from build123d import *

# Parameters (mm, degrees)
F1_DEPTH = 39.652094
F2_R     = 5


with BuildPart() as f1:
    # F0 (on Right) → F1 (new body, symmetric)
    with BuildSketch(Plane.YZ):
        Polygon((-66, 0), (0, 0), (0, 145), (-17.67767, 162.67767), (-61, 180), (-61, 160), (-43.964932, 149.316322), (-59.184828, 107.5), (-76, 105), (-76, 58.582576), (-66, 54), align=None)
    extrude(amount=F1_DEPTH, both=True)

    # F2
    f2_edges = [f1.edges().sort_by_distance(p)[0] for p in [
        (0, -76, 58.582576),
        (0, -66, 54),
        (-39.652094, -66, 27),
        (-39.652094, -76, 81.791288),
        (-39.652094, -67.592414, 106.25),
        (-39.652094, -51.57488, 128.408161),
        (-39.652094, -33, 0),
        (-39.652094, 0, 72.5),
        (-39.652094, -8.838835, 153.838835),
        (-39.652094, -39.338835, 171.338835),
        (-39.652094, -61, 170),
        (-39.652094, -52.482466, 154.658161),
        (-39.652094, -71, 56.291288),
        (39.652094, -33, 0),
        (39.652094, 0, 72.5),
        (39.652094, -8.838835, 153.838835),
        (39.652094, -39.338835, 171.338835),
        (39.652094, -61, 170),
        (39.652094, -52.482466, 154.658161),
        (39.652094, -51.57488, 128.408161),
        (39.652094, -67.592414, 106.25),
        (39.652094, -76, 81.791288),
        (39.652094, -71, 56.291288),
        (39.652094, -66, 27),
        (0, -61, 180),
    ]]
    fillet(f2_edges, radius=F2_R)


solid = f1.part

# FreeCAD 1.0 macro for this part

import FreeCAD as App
import Part
import Sketcher
from FreeCAD import Vector
Q = App.Units.Quantity


def edges_at(feature, points):
    """Names of the edges that pass closest to the given points."""
    edges = feature.Shape.Edges
    near = lambda p: min(range(len(edges)), key=lambda i: edges[i].distToShape(Part.Vertex(*p))[0])
    return sorted({f"Edge{near(p) + 1}" for p in points})

doc = App.newDocument("Part")
body = doc.addObject("PartDesign::Body", "Body")

sketch1 = body.newObject("Sketcher::SketchObject", "Sketch")
sketch1.AttachmentSupport = (doc.getObject("YZ_Plane"), [""])
sketch1.MapMode = "FlatFace"
sketch1.addGeometry(Part.LineSegment(Vector(-66, 0, 0), Vector(0, 0, 0)), False)
sketch1.addGeometry(Part.LineSegment(Vector(0, 0, 0), Vector(0, 145, 0)), False)
sketch1.addGeometry(Part.LineSegment(Vector(0, 145, 0), Vector(-18, 163, 0)), False)
sketch1.addGeometry(Part.LineSegment(Vector(-18, 163, 0), Vector(-61, 180, 0)), False)
sketch1.addGeometry(Part.LineSegment(Vector(-61, 180, 0), Vector(-61, 160, 0)), False)
sketch1.addGeometry(Part.LineSegment(Vector(-61, 160, 0), Vector(-44, 149, 0)), False)
sketch1.addGeometry(Part.LineSegment(Vector(-44, 149, 0), Vector(-59, 108, 0)), False)
sketch1.addGeometry(Part.LineSegment(Vector(-59, 108, 0), Vector(-76, 105, 0)), False)
sketch1.addGeometry(Part.LineSegment(Vector(-76, 105, 0), Vector(-76, 59, 0)), False)
sketch1.addGeometry(Part.LineSegment(Vector(-76, 59, 0), Vector(-66, 54, 0)), False)
sketch1.addGeometry(Part.LineSegment(Vector(-66, 54, 0), Vector(-66, 0, 0)), False)
sketch1.addConstraint(Sketcher.Constraint("Coincident", 0, 2, 1, 1))
sketch1.addConstraint(Sketcher.Constraint("Coincident", 1, 2, 2, 1))
sketch1.addConstraint(Sketcher.Constraint("Coincident", 2, 2, 3, 1))
sketch1.addConstraint(Sketcher.Constraint("Coincident", 3, 2, 4, 1))
sketch1.addConstraint(Sketcher.Constraint("Coincident", 4, 2, 5, 1))
sketch1.addConstraint(Sketcher.Constraint("Coincident", 5, 2, 6, 1))
sketch1.addConstraint(Sketcher.Constraint("Coincident", 6, 2, 7, 1))
sketch1.addConstraint(Sketcher.Constraint("Coincident", 7, 2, 8, 1))
sketch1.addConstraint(Sketcher.Constraint("Coincident", 8, 2, 9, 1))
sketch1.addConstraint(Sketcher.Constraint("Coincident", 9, 2, 10, 1))
sketch1.addConstraint(Sketcher.Constraint("Coincident", 10, 2, 0, 1))
sketch1.addConstraint(Sketcher.Constraint("Horizontal", 0))
sketch1.addConstraint(Sketcher.Constraint("Vertical", 1))
sketch1.addConstraint(Sketcher.Constraint("Vertical", 4))
sketch1.addConstraint(Sketcher.Constraint("Vertical", 8))
sketch1.addConstraint(Sketcher.Constraint("Vertical", 10))
sketch1.addConstraint(Sketcher.Constraint("Coincident", 0, 2, -1, 1))
sketch1.addConstraint(Sketcher.Constraint("DistanceX", 0, 1, 0, 2, 66.0))
sketch1.addConstraint(Sketcher.Constraint("DistanceY", 1, 1, 1, 2, 145.0))
sketch1.addConstraint(Sketcher.Constraint("DistanceY", 4, 2, 4, 1, 20.0))
sketch1.addConstraint(Sketcher.Constraint("DistanceY", 10, 2, 10, 1, 54.0))
sketch1.addConstraint(Sketcher.Constraint("Angle", 2, Q("135 deg")))
sketch1.addConstraint(Sketcher.Constraint("Angle", 6, Q("-109.999999 deg")))
sketch1.addConstraint(Sketcher.Constraint("Distance", 2, 25.000001))
sketch1.addConstraint(Sketcher.Constraint("Distance", 7, 17.0))
sketch1.addConstraint(Sketcher.Constraint("Distance", 9, 11.0))
sketch1.addConstraint(Sketcher.Constraint("DistanceX", 3, 2, -1, 1, 61.0))
sketch1.addConstraint(Sketcher.Constraint("DistanceY", -1, 1, 3, 2, 180.0))
sketch1.addConstraint(Sketcher.Constraint("DistanceX", 7, 2, -1, 1, 76.0))
sketch1.addConstraint(Sketcher.Constraint("DistanceY", -1, 1, 7, 2, 105.0))
sketch1.addConstraint(Sketcher.Constraint("Distance", 6, 44.5))
sketch1.addConstraint(Sketcher.Constraint("DistanceY", -1, 1, 6, 2, 107.5))
pad1 = body.newObject("PartDesign::Pad", "Pad")
pad1.Profile = sketch1
pad1.Length = 79.304188
pad1.Midplane = True
doc.recompute()

fillet = body.newObject("PartDesign::Fillet", "Fillet")
fillet.Base = (pad1, edges_at(pad1, [
    (0, -76, 58.583),
    (0, -66, 54),
    (-39.652, -66, 27),
    (-39.652, -76, 81.791),
    (-39.652, -67.592, 106.25),
    (-39.652, -51.575, 128.408),
    (-39.652, -33, 0),
    (-39.652, 0, 72.5),
    (-39.652, -8.839, 153.839),
    (-39.652, -39.339, 171.339),
    (-39.652, -61, 170),
    (-39.652, -52.482, 154.658),
    (-39.652, -71, 56.291),
    (39.652, -33, 0),
    (39.652, 0, 72.5),
    (39.652, -8.839, 153.839),
    (39.652, -39.339, 171.339),
    (39.652, -61, 170),
    (39.652, -52.482, 154.658),
    (39.652, -51.575, 128.408),
    (39.652, -67.592, 106.25),
    (39.652, -76, 81.791),
    (39.652, -71, 56.291),
    (39.652, -66, 27),
    (0, -61, 180),
]))
fillet.Radius = 5

doc.recompute()
